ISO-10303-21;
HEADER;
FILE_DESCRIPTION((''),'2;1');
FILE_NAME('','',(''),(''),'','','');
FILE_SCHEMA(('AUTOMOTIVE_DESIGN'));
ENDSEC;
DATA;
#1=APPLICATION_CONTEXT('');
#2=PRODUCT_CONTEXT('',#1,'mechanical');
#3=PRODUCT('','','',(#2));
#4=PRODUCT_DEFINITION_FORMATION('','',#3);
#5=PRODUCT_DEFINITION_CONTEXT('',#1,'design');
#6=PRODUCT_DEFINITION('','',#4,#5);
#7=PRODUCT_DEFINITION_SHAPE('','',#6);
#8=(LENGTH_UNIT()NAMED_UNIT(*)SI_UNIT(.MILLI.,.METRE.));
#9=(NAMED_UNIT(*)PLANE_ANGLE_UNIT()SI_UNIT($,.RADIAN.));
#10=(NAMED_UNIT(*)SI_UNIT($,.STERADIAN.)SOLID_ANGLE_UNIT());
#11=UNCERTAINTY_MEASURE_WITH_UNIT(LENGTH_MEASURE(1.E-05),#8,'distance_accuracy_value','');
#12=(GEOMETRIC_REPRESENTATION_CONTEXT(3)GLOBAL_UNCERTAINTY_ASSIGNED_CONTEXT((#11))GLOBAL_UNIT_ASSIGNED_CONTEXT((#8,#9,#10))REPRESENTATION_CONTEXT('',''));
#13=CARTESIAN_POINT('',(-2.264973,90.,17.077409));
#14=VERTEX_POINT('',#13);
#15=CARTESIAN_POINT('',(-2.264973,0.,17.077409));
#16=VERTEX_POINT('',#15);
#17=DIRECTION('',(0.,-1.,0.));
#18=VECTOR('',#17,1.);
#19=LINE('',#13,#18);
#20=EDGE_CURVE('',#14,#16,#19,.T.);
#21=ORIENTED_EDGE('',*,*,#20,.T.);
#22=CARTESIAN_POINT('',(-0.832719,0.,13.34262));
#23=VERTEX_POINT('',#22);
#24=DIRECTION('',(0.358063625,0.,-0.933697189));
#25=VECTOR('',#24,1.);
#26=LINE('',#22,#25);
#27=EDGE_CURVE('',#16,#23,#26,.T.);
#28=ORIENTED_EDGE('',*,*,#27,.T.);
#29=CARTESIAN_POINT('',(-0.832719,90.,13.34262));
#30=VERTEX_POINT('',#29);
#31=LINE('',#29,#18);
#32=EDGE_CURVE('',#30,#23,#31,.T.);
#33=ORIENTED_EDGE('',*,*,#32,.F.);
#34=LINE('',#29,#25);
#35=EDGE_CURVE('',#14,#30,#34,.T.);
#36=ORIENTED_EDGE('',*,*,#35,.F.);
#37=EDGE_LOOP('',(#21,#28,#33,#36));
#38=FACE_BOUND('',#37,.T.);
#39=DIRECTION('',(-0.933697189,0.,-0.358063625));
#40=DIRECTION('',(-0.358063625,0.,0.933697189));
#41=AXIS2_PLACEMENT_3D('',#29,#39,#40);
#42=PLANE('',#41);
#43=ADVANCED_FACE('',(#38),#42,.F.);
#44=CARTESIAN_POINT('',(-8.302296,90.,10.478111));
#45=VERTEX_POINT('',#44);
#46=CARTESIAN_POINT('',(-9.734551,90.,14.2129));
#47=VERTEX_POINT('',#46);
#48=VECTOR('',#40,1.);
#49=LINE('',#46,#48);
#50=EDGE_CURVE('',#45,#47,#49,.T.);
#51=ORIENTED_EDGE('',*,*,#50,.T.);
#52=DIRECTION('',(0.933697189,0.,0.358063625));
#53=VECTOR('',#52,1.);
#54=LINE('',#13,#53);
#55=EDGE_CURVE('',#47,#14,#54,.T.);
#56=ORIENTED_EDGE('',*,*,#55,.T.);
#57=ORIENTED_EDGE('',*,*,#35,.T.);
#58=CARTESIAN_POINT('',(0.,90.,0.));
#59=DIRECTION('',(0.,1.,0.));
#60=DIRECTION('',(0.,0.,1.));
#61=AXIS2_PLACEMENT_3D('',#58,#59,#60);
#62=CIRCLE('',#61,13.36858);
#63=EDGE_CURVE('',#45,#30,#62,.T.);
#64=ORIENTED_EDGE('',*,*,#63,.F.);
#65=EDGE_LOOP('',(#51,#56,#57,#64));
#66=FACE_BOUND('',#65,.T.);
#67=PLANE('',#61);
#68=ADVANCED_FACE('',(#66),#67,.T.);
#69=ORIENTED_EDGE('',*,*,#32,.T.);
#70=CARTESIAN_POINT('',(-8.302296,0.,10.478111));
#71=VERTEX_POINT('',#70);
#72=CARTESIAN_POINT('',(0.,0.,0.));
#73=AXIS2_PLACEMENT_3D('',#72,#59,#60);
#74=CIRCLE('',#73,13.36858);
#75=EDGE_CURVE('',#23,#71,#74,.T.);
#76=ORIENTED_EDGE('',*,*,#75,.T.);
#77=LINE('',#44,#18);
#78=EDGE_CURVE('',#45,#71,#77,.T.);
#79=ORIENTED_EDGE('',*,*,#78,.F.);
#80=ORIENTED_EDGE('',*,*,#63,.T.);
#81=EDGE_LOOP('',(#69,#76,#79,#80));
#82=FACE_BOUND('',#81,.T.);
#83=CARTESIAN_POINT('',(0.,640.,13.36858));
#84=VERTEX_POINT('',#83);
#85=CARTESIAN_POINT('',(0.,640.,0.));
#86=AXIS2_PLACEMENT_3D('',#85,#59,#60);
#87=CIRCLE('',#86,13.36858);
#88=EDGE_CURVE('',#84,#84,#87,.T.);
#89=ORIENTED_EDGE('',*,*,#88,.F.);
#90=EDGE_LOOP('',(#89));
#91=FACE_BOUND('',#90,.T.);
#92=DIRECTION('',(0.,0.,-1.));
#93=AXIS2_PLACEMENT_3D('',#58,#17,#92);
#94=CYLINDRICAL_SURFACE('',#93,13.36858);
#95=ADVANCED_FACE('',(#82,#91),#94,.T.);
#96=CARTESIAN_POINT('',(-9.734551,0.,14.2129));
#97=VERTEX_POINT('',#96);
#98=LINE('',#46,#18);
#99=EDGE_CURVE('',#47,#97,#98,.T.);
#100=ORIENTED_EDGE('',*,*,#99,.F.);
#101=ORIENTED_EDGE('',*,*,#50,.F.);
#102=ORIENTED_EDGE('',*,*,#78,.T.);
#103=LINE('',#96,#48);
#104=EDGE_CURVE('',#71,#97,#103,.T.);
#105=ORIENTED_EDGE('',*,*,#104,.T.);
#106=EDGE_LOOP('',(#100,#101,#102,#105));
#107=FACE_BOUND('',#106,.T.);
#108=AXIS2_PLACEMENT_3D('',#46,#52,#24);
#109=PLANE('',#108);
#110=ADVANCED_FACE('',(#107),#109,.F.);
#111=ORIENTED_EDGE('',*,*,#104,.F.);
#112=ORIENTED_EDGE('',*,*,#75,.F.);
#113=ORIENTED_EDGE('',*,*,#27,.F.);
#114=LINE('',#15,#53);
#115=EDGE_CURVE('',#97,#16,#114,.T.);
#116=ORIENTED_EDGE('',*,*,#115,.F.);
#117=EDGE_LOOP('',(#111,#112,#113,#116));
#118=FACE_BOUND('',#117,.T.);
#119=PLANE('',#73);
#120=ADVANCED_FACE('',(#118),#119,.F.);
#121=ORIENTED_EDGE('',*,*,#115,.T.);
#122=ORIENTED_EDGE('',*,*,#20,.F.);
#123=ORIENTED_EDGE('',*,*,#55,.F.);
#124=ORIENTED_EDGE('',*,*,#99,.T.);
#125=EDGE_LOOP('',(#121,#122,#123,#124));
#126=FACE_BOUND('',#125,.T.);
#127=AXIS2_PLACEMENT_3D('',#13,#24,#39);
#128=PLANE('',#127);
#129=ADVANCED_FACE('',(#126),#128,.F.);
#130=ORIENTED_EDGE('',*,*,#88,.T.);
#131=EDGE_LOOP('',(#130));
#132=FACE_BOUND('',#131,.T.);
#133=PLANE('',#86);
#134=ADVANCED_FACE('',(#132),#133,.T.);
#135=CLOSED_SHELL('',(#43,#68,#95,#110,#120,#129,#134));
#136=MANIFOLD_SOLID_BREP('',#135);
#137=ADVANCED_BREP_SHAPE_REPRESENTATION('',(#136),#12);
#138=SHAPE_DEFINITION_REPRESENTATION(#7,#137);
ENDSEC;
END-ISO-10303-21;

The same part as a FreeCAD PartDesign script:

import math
import FreeCAD as App
import Part
import Sketcher
Q = App.Units.Quantity

doc = App.newDocument("Part")
body = doc.addObject("PartDesign::Body", "Body")

# Sketch on XZ plane
sketch1 = doc.addObject("Sketcher::SketchObject", "Sketch")
body.addObject(sketch1)
sketch1.AttachmentSupport = (doc.XZ_Plane, [""])
sketch1.MapMode = "FlatFace"
sketch1.addGeometry([
    Part.LineSegment(App.Vector(-2.3, 17.1, 0), App.Vector(-0.8, 13.3, 0)),
    Part.ArcOfCircle(Part.Circle(App.Vector(0, 0, 0), App.Vector(0, 0, 1), 13.4), math.radians(128), math.radians(454)),
    Part.LineSegment(App.Vector(-8.3, 10.5, 0), App.Vector(-9.7, 14.2, 0)),
    Part.LineSegment(App.Vector(-9.7, 14.2, 0), App.Vector(-2.3, 17.1, 0)),
], False)
sketch1.addConstraint([
    Sketcher.Constraint("Coincident", 0, 2, 1, 2),
    Sketcher.Constraint("Coincident", 1, 1, 2, 1),
    Sketcher.Constraint("Coincident", 2, 2, 3, 1),
    Sketcher.Constraint("Coincident", 3, 2, 0, 1),
    Sketcher.Constraint("Coincident", 1, 3, -1, 1),
    Sketcher.Constraint("Parallel", 0, 2),
    Sketcher.Constraint("Perpendicular", 2, 3),
    Sketcher.Constraint("Equal", 0, 2),
    Sketcher.Constraint("Distance", 0, Q("4 mm")),
    Sketcher.Constraint("Distance", 3, Q("8 mm")),
    Sketcher.Constraint("Radius", 1, Q("13.36858 mm")),
    Sketcher.Constraint("DistanceY", -1, 1, 2, 2, Q("14.2129 mm")),
])
pad1 = doc.addObject("PartDesign::Pad", "Pad")
body.addObject(pad1)
pad1.Profile = sketch1
pad1.Length = 90
pad1.Reversed = True

# Sketch on XZ plane
sketch2 = doc.addObject("Sketcher::SketchObject", "Sketch001")
body.addObject(sketch2)
sketch2.AttachmentSupport = (doc.XZ_Plane, [""])
sketch2.MapMode = "FlatFace"
sketch2.AttachmentOffset = App.Placement(App.Vector(0, 0, -90), App.Rotation())
sketch2.addGeometry(Part.Circle(App.Vector(0, 0, 0), App.Vector(0, 0, 1), 13), False)
sketch2.addConstraint([
    Sketcher.Constraint("Coincident", 0, 3, -1, 1),
    Sketcher.Constraint("Diameter", 0, Q("26.73716 mm")),
])
pad2 = doc.addObject("PartDesign::Pad", "Pad001")
body.addObject(pad2)
pad2.Profile = sketch2
pad2.Length = 550
pad2.Reversed = True

doc.recompute()
